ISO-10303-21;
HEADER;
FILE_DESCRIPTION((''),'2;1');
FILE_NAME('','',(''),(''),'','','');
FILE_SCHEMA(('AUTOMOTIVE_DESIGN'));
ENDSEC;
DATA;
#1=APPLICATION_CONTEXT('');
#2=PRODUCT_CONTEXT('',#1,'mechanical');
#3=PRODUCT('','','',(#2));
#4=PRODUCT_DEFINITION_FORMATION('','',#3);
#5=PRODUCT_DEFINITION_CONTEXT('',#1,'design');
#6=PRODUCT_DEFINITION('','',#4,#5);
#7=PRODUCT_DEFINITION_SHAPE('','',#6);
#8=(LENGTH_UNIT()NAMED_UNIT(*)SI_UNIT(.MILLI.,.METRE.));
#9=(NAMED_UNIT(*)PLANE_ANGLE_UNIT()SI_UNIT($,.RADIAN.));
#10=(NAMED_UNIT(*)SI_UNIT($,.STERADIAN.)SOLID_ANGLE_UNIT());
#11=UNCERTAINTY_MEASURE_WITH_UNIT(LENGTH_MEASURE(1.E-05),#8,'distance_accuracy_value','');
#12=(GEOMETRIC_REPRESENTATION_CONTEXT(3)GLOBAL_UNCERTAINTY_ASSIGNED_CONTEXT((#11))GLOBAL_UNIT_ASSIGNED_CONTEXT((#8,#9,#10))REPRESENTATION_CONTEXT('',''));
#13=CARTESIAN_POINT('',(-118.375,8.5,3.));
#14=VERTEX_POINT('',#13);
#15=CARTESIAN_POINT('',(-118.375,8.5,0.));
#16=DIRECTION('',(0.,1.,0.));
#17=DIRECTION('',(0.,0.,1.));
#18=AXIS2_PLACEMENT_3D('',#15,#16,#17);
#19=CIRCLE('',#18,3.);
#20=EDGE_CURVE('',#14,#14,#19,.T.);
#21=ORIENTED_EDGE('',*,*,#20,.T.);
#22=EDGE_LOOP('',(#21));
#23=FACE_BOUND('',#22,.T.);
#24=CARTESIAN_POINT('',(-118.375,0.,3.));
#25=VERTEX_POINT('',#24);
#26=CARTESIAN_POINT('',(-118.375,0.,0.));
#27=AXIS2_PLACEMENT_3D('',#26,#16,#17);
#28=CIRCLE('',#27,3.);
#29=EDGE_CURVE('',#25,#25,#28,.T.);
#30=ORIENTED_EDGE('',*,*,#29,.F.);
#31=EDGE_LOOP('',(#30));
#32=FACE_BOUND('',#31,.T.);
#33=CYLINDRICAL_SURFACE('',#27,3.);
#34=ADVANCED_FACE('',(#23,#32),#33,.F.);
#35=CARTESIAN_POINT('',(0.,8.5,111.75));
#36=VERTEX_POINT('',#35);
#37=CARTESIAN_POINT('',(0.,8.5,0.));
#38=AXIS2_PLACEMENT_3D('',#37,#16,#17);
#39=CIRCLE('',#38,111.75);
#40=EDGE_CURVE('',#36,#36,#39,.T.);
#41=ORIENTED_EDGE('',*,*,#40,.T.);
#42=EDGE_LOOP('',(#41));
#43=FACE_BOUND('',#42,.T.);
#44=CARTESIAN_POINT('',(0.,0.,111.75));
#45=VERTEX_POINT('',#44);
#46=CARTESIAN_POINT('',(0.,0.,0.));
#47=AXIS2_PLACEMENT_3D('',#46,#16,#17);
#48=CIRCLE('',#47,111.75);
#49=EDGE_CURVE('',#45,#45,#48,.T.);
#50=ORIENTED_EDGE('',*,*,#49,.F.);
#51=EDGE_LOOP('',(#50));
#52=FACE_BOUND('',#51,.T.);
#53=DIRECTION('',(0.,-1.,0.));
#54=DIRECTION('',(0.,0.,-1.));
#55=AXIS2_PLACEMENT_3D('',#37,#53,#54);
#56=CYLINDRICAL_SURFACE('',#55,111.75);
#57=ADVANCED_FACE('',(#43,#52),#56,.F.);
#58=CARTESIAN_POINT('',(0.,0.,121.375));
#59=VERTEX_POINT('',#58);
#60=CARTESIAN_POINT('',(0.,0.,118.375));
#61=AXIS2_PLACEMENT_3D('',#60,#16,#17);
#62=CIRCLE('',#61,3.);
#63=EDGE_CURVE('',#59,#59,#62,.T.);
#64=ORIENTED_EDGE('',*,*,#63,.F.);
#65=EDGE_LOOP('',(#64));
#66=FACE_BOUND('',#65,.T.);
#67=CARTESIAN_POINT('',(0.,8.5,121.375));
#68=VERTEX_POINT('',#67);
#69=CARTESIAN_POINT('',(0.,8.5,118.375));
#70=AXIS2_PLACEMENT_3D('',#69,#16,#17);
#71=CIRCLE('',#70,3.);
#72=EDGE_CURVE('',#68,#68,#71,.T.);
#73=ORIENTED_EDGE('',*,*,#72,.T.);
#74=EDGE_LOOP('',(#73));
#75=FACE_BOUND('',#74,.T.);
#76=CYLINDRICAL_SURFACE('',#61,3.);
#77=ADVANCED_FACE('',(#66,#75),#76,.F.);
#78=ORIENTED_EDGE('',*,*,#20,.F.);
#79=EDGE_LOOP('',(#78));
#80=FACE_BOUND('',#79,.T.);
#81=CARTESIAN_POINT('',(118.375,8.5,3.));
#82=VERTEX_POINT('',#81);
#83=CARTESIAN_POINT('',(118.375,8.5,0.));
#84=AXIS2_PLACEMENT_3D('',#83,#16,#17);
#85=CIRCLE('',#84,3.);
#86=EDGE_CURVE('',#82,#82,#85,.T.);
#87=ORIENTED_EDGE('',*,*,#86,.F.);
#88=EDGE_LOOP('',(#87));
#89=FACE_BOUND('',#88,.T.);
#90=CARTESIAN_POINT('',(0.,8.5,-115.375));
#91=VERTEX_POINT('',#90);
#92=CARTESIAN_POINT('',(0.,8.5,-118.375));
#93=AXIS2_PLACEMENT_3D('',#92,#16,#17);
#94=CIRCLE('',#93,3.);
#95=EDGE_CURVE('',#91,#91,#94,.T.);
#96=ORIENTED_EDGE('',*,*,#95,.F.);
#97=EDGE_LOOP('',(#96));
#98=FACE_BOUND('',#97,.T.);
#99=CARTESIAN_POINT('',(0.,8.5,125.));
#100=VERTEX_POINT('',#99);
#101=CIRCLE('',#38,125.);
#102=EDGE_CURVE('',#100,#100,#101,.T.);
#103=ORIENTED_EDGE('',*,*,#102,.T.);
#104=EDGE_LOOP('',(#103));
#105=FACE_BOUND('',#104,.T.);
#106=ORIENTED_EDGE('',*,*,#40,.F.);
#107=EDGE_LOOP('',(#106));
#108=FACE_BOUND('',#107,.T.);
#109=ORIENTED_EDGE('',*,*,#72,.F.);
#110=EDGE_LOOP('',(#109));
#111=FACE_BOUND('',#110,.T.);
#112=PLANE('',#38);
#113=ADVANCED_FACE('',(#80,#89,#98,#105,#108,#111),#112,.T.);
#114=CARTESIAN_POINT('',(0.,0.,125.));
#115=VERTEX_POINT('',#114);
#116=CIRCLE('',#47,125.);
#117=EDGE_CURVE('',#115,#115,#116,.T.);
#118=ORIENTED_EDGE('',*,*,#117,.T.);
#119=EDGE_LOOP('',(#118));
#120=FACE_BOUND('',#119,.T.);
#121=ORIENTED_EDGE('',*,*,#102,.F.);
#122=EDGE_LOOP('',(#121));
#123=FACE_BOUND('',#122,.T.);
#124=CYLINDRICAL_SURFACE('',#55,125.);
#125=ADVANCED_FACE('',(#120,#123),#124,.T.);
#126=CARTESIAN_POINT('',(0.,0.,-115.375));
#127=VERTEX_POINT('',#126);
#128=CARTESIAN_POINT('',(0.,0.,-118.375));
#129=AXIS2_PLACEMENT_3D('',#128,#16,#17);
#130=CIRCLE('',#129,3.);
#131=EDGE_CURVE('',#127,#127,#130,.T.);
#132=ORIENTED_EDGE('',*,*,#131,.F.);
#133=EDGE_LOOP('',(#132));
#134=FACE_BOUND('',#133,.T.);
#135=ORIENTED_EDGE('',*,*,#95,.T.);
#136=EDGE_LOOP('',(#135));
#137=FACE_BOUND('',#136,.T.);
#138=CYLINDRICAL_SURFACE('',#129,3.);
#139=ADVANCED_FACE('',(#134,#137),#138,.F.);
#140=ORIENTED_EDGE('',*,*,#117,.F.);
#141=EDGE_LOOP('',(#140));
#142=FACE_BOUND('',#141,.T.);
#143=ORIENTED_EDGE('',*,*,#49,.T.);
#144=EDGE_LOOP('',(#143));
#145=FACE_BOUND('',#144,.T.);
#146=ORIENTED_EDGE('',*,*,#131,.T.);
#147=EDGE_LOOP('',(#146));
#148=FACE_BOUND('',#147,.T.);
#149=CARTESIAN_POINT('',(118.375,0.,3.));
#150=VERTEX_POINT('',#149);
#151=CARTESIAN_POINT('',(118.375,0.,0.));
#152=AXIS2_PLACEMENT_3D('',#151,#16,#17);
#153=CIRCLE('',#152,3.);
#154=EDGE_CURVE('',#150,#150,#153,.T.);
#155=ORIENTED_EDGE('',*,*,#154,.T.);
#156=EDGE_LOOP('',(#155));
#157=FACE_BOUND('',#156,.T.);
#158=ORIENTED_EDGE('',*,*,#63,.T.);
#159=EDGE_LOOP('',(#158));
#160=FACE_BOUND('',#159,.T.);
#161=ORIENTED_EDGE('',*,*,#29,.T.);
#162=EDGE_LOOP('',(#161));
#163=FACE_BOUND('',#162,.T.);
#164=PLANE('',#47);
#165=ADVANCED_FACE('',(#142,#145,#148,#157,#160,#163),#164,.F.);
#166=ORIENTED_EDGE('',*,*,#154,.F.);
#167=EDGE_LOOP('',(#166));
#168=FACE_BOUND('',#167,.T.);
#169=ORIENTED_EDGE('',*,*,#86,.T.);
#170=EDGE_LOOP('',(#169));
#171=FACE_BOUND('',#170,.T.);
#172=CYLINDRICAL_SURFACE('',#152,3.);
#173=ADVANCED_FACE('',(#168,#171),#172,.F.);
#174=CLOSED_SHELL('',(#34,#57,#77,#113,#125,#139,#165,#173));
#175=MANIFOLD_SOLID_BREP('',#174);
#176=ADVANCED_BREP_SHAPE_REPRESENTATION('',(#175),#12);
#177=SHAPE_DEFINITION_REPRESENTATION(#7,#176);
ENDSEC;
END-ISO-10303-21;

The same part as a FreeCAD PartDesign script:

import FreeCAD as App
import Part
import Sketcher

V = App.Vector

doc = App.newDocument("Part")
body = doc.addObject("PartDesign::Body", "Body")

sketch1 = body.newObject("Sketcher::SketchObject", "Sketch")
sketch1.AttachmentSupport = (doc.getObject("XZ_Plane"), [""])
sketch1.MapMode = "FlatFace"
sketch1.addGeometry(Part.Circle(V(0, 0, 0), V(0, 0, 1), 125), False)
sketch1.addGeometry(Part.Circle(V(0, 0, 0), V(0, 0, 1), 112), False)
sketch1.addConstraint(Sketcher.Constraint("Coincident", 0, 3, -1, 1))
sketch1.addConstraint(Sketcher.Constraint("Coincident", 1, 3, -1, 1))
sketch1.addConstraint(Sketcher.Constraint("Diameter", 0, 250.0))
sketch1.addConstraint(Sketcher.Constraint("Diameter", 1, 223.5))
pad1 = body.newObject("PartDesign::Pad", "Pad")
pad1.Profile = sketch1
pad1.Length = 8.5
pad1.Reversed = True

sketch2 = body.newObject("Sketcher::SketchObject", "Sketch001")
sketch2.AttachmentSupport = (doc.getObject("XZ_Plane"), [""])
sketch2.MapMode = "FlatFace"
sketch2.AttachmentOffset = App.Placement(V(0, 0, -8.5), App.Rotation())
sketch2.addGeometry(Part.Circle(V(0, -118.4, 0), V(0, 0, 1), 3), False)
sketch2.addGeometry(Part.Circle(V(118.4, 0, 0), V(0, 0, 1), 3), False)
sketch2.addGeometry(Part.Circle(V(0, 118.4, 0), V(0, 0, 1), 3), False)
sketch2.addGeometry(Part.Circle(V(-118.4, 0, 0), V(0, 0, 1), 3), False)
sketch2.addConstraint(Sketcher.Constraint("Equal", 0, 1))
sketch2.addConstraint(Sketcher.Constraint("Equal", 1, 2))
sketch2.addConstraint(Sketcher.Constraint("Equal", 2, 3))
sketch2.addConstraint(Sketcher.Constraint("Symmetric", 0, 3, 2, 3, -1, 1))
sketch2.addConstraint(Sketcher.Constraint("Symmetric", 1, 3, 3, 3, -1, 1))
sketch2.addConstraint(Sketcher.Constraint("PointOnObject", 0, 3, -2))
sketch2.addConstraint(Sketcher.Constraint("PointOnObject", 1, 3, -1))
sketch2.addConstraint(Sketcher.Constraint("Diameter", 0, 6.0))
sketch2.addConstraint(Sketcher.Constraint("DistanceY", 0, 3, 2, 3, 236.75))
sketch2.addConstraint(Sketcher.Constraint("DistanceX", 3, 3, 1, 3, 236.75))
pocket1 = body.newObject("PartDesign::Pocket", "Pocket")
pocket1.Profile = sketch2
pocket1.Type = "ThroughAll"
pocket1.Reversed = True

doc.recompute()
